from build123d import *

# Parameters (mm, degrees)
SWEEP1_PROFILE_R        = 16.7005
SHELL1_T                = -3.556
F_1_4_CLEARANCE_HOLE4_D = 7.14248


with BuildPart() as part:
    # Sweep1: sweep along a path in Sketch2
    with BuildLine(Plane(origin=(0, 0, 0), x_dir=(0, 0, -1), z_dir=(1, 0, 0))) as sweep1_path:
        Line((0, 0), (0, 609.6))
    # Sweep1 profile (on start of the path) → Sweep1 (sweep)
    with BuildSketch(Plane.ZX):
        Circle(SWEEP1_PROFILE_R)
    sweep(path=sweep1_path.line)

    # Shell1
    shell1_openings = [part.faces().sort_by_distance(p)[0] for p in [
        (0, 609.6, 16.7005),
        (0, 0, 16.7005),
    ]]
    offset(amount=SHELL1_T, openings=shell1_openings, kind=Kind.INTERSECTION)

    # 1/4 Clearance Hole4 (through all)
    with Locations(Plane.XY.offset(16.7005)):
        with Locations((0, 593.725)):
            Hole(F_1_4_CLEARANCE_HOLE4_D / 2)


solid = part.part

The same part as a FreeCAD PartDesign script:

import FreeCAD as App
import Part
import Sketcher

V = App.Vector
Q = App.Units.Quantity


def faces_at(feature, points):
    """Names of the faces that lie closest to the given points."""
    faces = feature.Shape.Faces
    near = lambda p: min(range(len(faces)), key=lambda i: faces[i].distToShape(Part.Vertex(*p))[0])
    return sorted({f"Face{near(p) + 1}" for p in points})

doc = App.newDocument("Part")
params = doc.addObject("Spreadsheet::Sheet", "Params")
for row, (alias, value) in enumerate([
    ("sketch1_diameter", "1.315 in"),
    ("sketch2_height", "24 in"),
    ("thickness_wall", "0.14 in"),
    ("hole_diameter", "0.2812 in"),
], start=1):
    params.set(f"A{row}", alias)
    params.set(f"B{row}", "=" + value)
    params.setAlias(f"B{row}", alias)

body = doc.addObject("PartDesign::Body", "Body")

# Sketch on XZ plane
sketch1 = body.newObject("Sketcher::SketchObject", "Sketch")
sketch1.AttachmentSupport = (doc.getObject("XZ_Plane"), [""])
sketch1.MapMode = "FlatFace"
sketch1.addGeometry(Part.Circle(V(0, 0, 0), V(0, 0, 1), 17), False)
sketch1.addConstraint([
    Sketcher.Constraint("Coincident", 0, 3, -1, 1),
    Sketcher.Constraint("Diameter", 0, Q("1.315 in")),
])
sketch1.setExpression("Constraints[1]", "Params.sketch1_diameter")

# Sketch on XY plane
sketch2 = body.newObject("Sketcher::SketchObject", "Sketch001")
sketch2.AttachmentSupport = (doc.getObject("XY_Plane"), [""])
sketch2.MapMode = "FlatFace"
sketch2.addGeometry(Part.LineSegment(V(0, 0, 0), V(0, 610, 0)), False)
sketch2.addConstraint([
    Sketcher.Constraint("Vertical", 0),
    Sketcher.Constraint("Coincident", 0, 1, -1, 1),
    Sketcher.Constraint("DistanceY", 0, 1, 0, 2, Q("24 in")),
])
sketch2.setExpression("Constraints[2]", "Params.sketch2_height")
doc.recompute()

additivepipe = body.newObject("PartDesign::AdditivePipe", "AdditivePipe")
additivepipe.Profile = sketch1
additivepipe.Spine = (sketch2, ["Edge1"])
doc.recompute()

thickness = body.newObject("PartDesign::Thickness", "Thickness")
thickness.Base = (additivepipe, faces_at(additivepipe, [(0, 609.6, 0), (0, 0, 0)]))
thickness.setExpression("Value", "Params.thickness_wall")
thickness.Reversed = True
thickness.Join = "Intersection"

# Sketch on XY plane
sketch3 = body.newObject("Sketcher::SketchObject", "Sketch002")
sketch3.AttachmentSupport = (doc.getObject("XY_Plane"), [""])
sketch3.MapMode = "FlatFace"
sketch3.AttachmentOffset = App.Placement(V(0, 0, 0.6575 * 25.4), App.Rotation())
sketch3.addGeometry(Part.Circle(V(0, 593.7, 0), V(0, 0, 1), 3.6), False)
sketch3.addConstraint([
    Sketcher.Constraint("PointOnObject", 0, 3, -2),
    Sketcher.Constraint("Diameter", 0, Q("0.2812 in")),
    Sketcher.Constraint("DistanceY", -1, 1, 0, 3, Q("23.375 in")),
])
doc.recompute()
hole = body.newObject("PartDesign::Hole", "Hole")
hole.Profile = sketch3
hole.ThreadType = "None"
hole.setExpression("Diameter", "Params.hole_diameter")
hole.DepthType = "ThroughAll"

doc.recompute()
